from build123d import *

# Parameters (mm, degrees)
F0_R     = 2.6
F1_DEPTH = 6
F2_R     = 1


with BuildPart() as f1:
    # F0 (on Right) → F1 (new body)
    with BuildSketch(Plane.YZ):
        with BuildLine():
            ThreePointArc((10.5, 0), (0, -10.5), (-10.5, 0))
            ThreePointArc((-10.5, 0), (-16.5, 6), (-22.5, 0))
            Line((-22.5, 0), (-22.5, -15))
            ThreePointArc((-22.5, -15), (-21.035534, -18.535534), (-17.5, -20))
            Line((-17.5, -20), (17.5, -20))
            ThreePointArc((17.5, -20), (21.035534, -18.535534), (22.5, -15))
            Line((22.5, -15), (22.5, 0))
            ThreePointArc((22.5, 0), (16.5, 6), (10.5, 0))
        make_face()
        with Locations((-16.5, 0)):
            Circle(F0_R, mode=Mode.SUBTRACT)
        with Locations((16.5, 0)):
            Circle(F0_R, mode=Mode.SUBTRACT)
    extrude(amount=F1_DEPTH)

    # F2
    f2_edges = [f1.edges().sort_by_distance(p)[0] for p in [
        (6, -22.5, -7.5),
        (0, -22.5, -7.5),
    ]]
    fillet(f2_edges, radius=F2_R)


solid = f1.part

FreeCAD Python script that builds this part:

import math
import FreeCAD as App
import Part
import Sketcher

V = App.Vector
Q = App.Units.Quantity


def edges_at(feature, points):
    """Names of the edges that pass closest to the given points."""
    edges = feature.Shape.Edges
    near = lambda p: min(range(len(edges)), key=lambda i: edges[i].distToShape(Part.Vertex(*p))[0])
    return sorted({f"Edge{near(p) + 1}" for p in points})

doc = App.newDocument("Part")
params = doc.addObject("Spreadsheet::Sheet", "Params")
for row, (alias, value) in enumerate([
    ("sketch1_radius", "6 mm"),
    ("sketch1_radius2", "5 mm"),
    ("sketch1_diameter", "5.2 mm"),
    ("sketch1_radius3", "10.5 mm"),
    ("sketch1_height", "15 mm"),
    ("pad1_length", "6 mm"),
    ("fillet_radius", "1 mm"),
], start=1):
    params.set(f"A{row}", alias)
    params.set(f"B{row}", "=" + value)
    params.setAlias(f"B{row}", alias)

body = doc.addObject("PartDesign::Body", "Body")

# Sketch on YZ plane
sketch1 = body.newObject("Sketcher::SketchObject", "Sketch")
sketch1.AttachmentSupport = (doc.getObject("YZ_Plane"), [""])
sketch1.MapMode = "FlatFace"
sketch1.addGeometry([
    Part.ArcOfCircle(Part.Circle(V(0, 0, 0), V(0, 0, 1), 10.5), math.radians(180), math.radians(360)),  # 0
    Part.ArcOfCircle(Part.Circle(V(-16.5, 0, 0), V(0, 0, 1), 6), math.radians(0), math.radians(180)),  # 1
    Part.LineSegment(V(-22.5, 0, 0), V(-22.5, -15, 0)),  # 2
    Part.ArcOfCircle(Part.Circle(V(-17.5, -15, 0), V(0, 0, 1), 5), math.radians(180), math.radians(270)),  # 3
    Part.LineSegment(V(-17.5, -20, 0), V(17.5, -20, 0)),  # 4
    Part.ArcOfCircle(Part.Circle(V(17.5, -15, 0), V(0, 0, 1), 5), math.radians(-90), math.radians(0)),  # 5
    Part.LineSegment(V(22.5, -15, 0), V(22.5, 0, 0)),  # 6
    Part.ArcOfCircle(Part.Circle(V(16.5, 0, 0), V(0, 0, 1), 6), math.radians(0), math.radians(180)),  # 7
    Part.Circle(V(-16.5, 0, 0), V(0, 0, 1), 2.6),  # 8
    Part.Circle(V(16.5, 0, 0), V(0, 0, 1), 2.6),  # 9
], False)
sketch1.addConstraint([
    Sketcher.Constraint("Tangent", 0, 1, 1, 1),
    Sketcher.Constraint("Tangent", 1, 2, 2, 1),
    Sketcher.Constraint("Tangent", 2, 2, 3, 1),
    Sketcher.Constraint("Tangent", 3, 2, 4, 1),
    Sketcher.Constraint("Tangent", 4, 2, 5, 1),
    Sketcher.Constraint("Tangent", 5, 2, 6, 1),
    Sketcher.Constraint("Tangent", 6, 2, 7, 1),
    Sketcher.Constraint("Tangent", 7, 2, 0, 2),
    Sketcher.Constraint("Vertical", 2),
    Sketcher.Constraint("Horizontal", 4),
    Sketcher.Constraint("Vertical", 6),
    Sketcher.Constraint("Coincident", 0, 3, -1, 1),
    Sketcher.Constraint("Coincident", 8, 3, 1, 3),
    Sketcher.Constraint("Coincident", 9, 3, 7, 3),
    Sketcher.Constraint("Equal", 3, 5),
    Sketcher.Constraint("Equal", 1, 7),
    Sketcher.Constraint("Equal", 8, 9),
    Sketcher.Constraint("PointOnObject", 1, 3, -1),
    Sketcher.Constraint("PointOnObject", 7, 3, -1),
    Sketcher.Constraint("Radius", 1, Q("6 mm")),
    Sketcher.Constraint("Radius", 3, Q("5 mm")),
    Sketcher.Constraint("Diameter", 8, Q("5.2 mm")),
    Sketcher.Constraint("Radius", 0, Q("10.5 mm")),
    Sketcher.Constraint("DistanceY", 2, 2, 2, 1, Q("15 mm")),
])
sketch1.setExpression("Constraints[19]", "Params.sketch1_radius")
sketch1.setExpression("Constraints[20]", "Params.sketch1_radius2")
sketch1.setExpression("Constraints[21]", "Params.sketch1_diameter")
sketch1.setExpression("Constraints[22]", "Params.sketch1_radius3")
sketch1.setExpression("Constraints[23]", "Params.sketch1_height")
pad1 = body.newObject("PartDesign::Pad", "Pad")
pad1.Profile = sketch1
pad1.setExpression("Length", "Params.pad1_length")
doc.recompute()

fillet = body.newObject("PartDesign::Fillet", "Fillet")
fillet.Base = (pad1, edges_at(pad1, [(6, -22.5, -7.5), (0, -22.5, -7.5)]))
fillet.setExpression("Radius", "Params.fillet_radius")

doc.recompute()
